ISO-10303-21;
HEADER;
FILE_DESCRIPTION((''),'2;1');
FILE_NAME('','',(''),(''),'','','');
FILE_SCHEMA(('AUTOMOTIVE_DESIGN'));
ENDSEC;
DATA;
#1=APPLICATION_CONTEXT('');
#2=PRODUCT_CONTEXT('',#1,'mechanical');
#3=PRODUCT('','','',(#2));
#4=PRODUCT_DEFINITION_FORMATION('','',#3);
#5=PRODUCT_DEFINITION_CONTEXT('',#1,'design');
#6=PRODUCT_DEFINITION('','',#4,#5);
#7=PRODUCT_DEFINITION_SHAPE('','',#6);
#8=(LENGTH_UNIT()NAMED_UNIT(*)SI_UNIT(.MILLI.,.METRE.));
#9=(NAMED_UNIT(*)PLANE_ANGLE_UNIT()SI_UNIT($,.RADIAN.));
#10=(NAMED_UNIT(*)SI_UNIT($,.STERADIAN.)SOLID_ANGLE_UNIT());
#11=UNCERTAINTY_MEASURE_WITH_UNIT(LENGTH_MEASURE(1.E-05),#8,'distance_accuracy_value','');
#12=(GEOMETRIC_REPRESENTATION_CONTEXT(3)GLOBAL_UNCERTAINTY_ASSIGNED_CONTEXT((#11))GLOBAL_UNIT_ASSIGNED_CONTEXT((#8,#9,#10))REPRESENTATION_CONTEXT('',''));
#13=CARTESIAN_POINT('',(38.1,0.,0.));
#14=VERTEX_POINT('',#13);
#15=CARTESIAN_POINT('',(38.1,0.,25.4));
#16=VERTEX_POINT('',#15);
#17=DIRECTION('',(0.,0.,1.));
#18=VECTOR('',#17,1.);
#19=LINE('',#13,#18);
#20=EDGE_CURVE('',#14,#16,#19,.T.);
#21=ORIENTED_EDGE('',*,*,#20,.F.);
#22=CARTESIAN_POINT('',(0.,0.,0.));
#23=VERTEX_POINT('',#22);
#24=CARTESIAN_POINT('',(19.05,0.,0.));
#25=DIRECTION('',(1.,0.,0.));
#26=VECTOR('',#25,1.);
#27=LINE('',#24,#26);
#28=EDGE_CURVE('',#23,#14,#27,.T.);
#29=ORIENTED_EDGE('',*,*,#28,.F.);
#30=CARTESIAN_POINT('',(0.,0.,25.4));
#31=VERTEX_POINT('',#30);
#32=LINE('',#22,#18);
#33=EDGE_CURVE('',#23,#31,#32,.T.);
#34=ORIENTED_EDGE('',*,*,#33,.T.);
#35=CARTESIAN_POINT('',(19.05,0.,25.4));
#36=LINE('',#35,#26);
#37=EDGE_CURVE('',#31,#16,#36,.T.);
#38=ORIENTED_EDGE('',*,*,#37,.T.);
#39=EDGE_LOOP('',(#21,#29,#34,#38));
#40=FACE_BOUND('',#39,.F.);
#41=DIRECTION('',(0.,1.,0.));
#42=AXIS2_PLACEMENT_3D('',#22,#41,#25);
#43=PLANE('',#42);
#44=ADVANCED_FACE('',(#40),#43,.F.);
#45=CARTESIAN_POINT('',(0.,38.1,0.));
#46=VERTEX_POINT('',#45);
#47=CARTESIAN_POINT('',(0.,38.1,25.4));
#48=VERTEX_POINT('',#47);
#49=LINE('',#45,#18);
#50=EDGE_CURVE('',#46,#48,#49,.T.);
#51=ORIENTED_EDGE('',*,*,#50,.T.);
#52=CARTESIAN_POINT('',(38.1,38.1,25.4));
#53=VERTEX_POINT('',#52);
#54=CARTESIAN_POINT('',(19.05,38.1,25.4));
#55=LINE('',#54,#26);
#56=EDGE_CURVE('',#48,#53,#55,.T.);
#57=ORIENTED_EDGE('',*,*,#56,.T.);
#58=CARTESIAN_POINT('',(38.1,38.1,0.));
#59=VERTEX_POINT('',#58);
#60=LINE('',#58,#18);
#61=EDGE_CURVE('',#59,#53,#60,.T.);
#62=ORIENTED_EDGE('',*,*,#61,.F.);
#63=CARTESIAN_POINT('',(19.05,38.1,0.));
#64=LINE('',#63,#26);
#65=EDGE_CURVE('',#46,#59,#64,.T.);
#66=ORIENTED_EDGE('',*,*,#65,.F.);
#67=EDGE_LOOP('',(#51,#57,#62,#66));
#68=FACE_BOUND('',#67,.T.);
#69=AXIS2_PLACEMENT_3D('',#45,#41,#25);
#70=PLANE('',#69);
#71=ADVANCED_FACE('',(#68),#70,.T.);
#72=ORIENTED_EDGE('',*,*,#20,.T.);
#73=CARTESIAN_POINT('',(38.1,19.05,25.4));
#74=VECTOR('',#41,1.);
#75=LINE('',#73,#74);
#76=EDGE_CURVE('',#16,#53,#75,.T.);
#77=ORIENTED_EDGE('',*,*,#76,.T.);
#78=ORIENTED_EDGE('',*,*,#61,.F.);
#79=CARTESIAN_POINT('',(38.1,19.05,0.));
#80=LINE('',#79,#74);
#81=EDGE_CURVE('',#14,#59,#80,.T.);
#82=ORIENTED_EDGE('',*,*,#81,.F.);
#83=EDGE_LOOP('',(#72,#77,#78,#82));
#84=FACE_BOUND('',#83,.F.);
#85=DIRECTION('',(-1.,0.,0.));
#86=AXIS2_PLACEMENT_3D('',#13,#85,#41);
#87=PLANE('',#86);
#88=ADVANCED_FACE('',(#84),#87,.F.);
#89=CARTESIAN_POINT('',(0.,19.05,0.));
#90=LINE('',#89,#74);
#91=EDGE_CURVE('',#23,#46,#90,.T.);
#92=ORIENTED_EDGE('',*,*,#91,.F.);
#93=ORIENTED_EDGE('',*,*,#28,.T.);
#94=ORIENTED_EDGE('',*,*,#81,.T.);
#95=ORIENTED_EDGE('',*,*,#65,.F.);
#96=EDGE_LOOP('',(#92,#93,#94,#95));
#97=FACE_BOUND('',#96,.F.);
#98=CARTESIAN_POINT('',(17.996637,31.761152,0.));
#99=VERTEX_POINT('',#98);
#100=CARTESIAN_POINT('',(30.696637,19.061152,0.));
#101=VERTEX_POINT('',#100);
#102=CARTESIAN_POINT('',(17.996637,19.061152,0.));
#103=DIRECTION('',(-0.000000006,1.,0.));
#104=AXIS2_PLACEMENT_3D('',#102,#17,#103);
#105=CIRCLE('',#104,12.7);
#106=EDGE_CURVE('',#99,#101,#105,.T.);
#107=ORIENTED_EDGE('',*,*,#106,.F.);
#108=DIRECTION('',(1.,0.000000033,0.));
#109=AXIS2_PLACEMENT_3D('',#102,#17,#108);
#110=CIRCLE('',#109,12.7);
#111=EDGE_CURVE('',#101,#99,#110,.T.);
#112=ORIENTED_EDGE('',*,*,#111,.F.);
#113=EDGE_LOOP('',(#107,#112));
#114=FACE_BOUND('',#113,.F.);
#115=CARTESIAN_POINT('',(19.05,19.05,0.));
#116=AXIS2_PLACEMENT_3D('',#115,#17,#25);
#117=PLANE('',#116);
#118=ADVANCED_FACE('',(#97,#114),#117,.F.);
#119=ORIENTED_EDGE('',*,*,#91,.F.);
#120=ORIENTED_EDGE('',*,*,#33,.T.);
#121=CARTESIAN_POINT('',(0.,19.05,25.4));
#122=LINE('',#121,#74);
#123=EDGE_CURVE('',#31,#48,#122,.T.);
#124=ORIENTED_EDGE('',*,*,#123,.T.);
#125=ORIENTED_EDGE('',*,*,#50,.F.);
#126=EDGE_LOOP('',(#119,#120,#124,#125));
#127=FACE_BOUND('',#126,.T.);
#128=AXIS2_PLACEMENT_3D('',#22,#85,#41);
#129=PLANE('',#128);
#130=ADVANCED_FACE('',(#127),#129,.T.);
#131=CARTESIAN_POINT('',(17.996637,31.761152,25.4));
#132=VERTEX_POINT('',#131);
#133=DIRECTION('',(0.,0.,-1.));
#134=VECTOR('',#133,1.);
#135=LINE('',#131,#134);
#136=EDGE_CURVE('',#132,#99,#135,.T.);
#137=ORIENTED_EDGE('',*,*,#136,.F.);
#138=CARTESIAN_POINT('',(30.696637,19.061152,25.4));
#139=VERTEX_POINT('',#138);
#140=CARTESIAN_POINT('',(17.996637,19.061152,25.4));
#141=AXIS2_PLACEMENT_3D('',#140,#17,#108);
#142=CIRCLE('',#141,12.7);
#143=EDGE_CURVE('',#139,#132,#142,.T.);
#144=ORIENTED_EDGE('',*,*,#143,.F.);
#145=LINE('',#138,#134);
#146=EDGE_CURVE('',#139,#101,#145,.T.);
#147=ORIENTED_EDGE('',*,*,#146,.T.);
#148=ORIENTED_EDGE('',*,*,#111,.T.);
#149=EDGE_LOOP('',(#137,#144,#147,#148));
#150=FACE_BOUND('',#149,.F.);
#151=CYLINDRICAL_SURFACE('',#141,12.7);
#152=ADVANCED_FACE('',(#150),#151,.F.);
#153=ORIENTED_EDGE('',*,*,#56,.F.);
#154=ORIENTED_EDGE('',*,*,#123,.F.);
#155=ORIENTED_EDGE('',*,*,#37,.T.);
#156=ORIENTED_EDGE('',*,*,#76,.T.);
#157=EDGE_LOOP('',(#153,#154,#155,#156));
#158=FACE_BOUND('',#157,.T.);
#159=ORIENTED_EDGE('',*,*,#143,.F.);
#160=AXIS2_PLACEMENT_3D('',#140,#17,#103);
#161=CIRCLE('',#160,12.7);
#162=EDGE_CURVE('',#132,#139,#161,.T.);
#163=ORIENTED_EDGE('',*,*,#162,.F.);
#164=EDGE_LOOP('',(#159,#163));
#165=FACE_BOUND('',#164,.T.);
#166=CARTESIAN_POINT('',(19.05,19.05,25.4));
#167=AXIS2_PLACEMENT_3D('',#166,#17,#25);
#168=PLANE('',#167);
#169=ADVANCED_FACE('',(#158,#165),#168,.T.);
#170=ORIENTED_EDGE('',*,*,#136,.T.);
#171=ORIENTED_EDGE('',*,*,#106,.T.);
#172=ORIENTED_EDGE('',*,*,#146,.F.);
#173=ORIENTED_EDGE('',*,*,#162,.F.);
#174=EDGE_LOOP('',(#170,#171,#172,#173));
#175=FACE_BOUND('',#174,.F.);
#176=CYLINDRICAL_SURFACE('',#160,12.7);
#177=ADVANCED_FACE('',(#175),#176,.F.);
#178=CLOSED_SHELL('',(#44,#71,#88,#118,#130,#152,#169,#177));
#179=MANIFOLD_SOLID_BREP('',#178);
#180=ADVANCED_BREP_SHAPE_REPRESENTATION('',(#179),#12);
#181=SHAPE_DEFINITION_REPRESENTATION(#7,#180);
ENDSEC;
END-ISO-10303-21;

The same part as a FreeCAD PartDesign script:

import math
import FreeCAD as App
import Part
import Sketcher

V = App.Vector
Q = App.Units.Quantity


def add_polygon(sketch, points):
    """Adds a closed chain of lines whose ends are joined by coincident constraints."""
    first, n = sketch.GeometryCount, len(points)
    for a, b in zip(points, points[1:] + points[:1]):
        sketch.addGeometry(Part.LineSegment(App.Vector(*a, 0), App.Vector(*b, 0)), False)
    for i in range(n):
        sketch.addConstraint(Sketcher.Constraint("Coincident", first + i, 2, first + (i + 1) % n, 1))

doc = App.newDocument("Part")
body = doc.addObject("PartDesign::Body", "Body")

# Sketch on XY plane
sketch1 = body.newObject("Sketcher::SketchObject", "Sketch")
sketch1.AttachmentSupport = (doc.getObject("XY_Plane"), [""])
sketch1.MapMode = "FlatFace"
add_polygon(sketch1, [(0, 38), (0, 0), (38, 0), (38, 38)])  # lines 0-3
sketch1.addConstraint([
    Sketcher.Constraint("Vertical", 0),
    Sketcher.Constraint("Horizontal", 1),
    Sketcher.Constraint("Vertical", 2),
    Sketcher.Constraint("Horizontal", 3),
    Sketcher.Constraint("Coincident", 0, 2, -1, 1),
    Sketcher.Constraint("Equal", 3, 0),
    Sketcher.Constraint("DistanceX", 1, 1, 1, 2, Q("1.5 in")),
])
pad1 = body.newObject("PartDesign::Pad", "Pad")
pad1.Profile = sketch1
pad1.Length = Q("1 in")

# Sketch on XY plane
sketch2 = body.newObject("Sketcher::SketchObject", "Sketch001")
sketch2.AttachmentSupport = (doc.getObject("XY_Plane"), [""])
sketch2.MapMode = "FlatFace"
sketch2.AttachmentOffset = App.Placement(V(0, 0, 1 * 25.4), App.Rotation())
sketch2.addGeometry([
    Part.ArcOfCircle(Part.Circle(V(18, 19, 0), V(0, 0, 1), 13), math.radians(90), math.radians(360)),
    Part.ArcOfCircle(Part.Circle(V(18, 19, 0), V(0, 0, 1), 13), math.radians(0), math.radians(90)),
], False)
sketch2.addConstraint([
    Sketcher.Constraint("Tangent", 0, 1, 1, 2),
    Sketcher.Constraint("Coincident", 1, 1, 0, 2),
    Sketcher.Constraint("Horizontal", 0, 3, 1, 1),
    Sketcher.Constraint("Vertical", 1, 3, 0, 1),
    Sketcher.Constraint("Radius", 0, Q("0.5 in")),
    Sketcher.Constraint("DistanceY", -1, 1, 1, 3, Q("19.061152 mm")),
    Sketcher.Constraint("DistanceX", -1, 1, 0, 3, Q("17.996637 mm")),
])
pocket1 = body.newObject("PartDesign::Pocket", "Pocket")
pocket1.Profile = sketch2
pocket1.Type = "ThroughAll"

doc.recompute()
